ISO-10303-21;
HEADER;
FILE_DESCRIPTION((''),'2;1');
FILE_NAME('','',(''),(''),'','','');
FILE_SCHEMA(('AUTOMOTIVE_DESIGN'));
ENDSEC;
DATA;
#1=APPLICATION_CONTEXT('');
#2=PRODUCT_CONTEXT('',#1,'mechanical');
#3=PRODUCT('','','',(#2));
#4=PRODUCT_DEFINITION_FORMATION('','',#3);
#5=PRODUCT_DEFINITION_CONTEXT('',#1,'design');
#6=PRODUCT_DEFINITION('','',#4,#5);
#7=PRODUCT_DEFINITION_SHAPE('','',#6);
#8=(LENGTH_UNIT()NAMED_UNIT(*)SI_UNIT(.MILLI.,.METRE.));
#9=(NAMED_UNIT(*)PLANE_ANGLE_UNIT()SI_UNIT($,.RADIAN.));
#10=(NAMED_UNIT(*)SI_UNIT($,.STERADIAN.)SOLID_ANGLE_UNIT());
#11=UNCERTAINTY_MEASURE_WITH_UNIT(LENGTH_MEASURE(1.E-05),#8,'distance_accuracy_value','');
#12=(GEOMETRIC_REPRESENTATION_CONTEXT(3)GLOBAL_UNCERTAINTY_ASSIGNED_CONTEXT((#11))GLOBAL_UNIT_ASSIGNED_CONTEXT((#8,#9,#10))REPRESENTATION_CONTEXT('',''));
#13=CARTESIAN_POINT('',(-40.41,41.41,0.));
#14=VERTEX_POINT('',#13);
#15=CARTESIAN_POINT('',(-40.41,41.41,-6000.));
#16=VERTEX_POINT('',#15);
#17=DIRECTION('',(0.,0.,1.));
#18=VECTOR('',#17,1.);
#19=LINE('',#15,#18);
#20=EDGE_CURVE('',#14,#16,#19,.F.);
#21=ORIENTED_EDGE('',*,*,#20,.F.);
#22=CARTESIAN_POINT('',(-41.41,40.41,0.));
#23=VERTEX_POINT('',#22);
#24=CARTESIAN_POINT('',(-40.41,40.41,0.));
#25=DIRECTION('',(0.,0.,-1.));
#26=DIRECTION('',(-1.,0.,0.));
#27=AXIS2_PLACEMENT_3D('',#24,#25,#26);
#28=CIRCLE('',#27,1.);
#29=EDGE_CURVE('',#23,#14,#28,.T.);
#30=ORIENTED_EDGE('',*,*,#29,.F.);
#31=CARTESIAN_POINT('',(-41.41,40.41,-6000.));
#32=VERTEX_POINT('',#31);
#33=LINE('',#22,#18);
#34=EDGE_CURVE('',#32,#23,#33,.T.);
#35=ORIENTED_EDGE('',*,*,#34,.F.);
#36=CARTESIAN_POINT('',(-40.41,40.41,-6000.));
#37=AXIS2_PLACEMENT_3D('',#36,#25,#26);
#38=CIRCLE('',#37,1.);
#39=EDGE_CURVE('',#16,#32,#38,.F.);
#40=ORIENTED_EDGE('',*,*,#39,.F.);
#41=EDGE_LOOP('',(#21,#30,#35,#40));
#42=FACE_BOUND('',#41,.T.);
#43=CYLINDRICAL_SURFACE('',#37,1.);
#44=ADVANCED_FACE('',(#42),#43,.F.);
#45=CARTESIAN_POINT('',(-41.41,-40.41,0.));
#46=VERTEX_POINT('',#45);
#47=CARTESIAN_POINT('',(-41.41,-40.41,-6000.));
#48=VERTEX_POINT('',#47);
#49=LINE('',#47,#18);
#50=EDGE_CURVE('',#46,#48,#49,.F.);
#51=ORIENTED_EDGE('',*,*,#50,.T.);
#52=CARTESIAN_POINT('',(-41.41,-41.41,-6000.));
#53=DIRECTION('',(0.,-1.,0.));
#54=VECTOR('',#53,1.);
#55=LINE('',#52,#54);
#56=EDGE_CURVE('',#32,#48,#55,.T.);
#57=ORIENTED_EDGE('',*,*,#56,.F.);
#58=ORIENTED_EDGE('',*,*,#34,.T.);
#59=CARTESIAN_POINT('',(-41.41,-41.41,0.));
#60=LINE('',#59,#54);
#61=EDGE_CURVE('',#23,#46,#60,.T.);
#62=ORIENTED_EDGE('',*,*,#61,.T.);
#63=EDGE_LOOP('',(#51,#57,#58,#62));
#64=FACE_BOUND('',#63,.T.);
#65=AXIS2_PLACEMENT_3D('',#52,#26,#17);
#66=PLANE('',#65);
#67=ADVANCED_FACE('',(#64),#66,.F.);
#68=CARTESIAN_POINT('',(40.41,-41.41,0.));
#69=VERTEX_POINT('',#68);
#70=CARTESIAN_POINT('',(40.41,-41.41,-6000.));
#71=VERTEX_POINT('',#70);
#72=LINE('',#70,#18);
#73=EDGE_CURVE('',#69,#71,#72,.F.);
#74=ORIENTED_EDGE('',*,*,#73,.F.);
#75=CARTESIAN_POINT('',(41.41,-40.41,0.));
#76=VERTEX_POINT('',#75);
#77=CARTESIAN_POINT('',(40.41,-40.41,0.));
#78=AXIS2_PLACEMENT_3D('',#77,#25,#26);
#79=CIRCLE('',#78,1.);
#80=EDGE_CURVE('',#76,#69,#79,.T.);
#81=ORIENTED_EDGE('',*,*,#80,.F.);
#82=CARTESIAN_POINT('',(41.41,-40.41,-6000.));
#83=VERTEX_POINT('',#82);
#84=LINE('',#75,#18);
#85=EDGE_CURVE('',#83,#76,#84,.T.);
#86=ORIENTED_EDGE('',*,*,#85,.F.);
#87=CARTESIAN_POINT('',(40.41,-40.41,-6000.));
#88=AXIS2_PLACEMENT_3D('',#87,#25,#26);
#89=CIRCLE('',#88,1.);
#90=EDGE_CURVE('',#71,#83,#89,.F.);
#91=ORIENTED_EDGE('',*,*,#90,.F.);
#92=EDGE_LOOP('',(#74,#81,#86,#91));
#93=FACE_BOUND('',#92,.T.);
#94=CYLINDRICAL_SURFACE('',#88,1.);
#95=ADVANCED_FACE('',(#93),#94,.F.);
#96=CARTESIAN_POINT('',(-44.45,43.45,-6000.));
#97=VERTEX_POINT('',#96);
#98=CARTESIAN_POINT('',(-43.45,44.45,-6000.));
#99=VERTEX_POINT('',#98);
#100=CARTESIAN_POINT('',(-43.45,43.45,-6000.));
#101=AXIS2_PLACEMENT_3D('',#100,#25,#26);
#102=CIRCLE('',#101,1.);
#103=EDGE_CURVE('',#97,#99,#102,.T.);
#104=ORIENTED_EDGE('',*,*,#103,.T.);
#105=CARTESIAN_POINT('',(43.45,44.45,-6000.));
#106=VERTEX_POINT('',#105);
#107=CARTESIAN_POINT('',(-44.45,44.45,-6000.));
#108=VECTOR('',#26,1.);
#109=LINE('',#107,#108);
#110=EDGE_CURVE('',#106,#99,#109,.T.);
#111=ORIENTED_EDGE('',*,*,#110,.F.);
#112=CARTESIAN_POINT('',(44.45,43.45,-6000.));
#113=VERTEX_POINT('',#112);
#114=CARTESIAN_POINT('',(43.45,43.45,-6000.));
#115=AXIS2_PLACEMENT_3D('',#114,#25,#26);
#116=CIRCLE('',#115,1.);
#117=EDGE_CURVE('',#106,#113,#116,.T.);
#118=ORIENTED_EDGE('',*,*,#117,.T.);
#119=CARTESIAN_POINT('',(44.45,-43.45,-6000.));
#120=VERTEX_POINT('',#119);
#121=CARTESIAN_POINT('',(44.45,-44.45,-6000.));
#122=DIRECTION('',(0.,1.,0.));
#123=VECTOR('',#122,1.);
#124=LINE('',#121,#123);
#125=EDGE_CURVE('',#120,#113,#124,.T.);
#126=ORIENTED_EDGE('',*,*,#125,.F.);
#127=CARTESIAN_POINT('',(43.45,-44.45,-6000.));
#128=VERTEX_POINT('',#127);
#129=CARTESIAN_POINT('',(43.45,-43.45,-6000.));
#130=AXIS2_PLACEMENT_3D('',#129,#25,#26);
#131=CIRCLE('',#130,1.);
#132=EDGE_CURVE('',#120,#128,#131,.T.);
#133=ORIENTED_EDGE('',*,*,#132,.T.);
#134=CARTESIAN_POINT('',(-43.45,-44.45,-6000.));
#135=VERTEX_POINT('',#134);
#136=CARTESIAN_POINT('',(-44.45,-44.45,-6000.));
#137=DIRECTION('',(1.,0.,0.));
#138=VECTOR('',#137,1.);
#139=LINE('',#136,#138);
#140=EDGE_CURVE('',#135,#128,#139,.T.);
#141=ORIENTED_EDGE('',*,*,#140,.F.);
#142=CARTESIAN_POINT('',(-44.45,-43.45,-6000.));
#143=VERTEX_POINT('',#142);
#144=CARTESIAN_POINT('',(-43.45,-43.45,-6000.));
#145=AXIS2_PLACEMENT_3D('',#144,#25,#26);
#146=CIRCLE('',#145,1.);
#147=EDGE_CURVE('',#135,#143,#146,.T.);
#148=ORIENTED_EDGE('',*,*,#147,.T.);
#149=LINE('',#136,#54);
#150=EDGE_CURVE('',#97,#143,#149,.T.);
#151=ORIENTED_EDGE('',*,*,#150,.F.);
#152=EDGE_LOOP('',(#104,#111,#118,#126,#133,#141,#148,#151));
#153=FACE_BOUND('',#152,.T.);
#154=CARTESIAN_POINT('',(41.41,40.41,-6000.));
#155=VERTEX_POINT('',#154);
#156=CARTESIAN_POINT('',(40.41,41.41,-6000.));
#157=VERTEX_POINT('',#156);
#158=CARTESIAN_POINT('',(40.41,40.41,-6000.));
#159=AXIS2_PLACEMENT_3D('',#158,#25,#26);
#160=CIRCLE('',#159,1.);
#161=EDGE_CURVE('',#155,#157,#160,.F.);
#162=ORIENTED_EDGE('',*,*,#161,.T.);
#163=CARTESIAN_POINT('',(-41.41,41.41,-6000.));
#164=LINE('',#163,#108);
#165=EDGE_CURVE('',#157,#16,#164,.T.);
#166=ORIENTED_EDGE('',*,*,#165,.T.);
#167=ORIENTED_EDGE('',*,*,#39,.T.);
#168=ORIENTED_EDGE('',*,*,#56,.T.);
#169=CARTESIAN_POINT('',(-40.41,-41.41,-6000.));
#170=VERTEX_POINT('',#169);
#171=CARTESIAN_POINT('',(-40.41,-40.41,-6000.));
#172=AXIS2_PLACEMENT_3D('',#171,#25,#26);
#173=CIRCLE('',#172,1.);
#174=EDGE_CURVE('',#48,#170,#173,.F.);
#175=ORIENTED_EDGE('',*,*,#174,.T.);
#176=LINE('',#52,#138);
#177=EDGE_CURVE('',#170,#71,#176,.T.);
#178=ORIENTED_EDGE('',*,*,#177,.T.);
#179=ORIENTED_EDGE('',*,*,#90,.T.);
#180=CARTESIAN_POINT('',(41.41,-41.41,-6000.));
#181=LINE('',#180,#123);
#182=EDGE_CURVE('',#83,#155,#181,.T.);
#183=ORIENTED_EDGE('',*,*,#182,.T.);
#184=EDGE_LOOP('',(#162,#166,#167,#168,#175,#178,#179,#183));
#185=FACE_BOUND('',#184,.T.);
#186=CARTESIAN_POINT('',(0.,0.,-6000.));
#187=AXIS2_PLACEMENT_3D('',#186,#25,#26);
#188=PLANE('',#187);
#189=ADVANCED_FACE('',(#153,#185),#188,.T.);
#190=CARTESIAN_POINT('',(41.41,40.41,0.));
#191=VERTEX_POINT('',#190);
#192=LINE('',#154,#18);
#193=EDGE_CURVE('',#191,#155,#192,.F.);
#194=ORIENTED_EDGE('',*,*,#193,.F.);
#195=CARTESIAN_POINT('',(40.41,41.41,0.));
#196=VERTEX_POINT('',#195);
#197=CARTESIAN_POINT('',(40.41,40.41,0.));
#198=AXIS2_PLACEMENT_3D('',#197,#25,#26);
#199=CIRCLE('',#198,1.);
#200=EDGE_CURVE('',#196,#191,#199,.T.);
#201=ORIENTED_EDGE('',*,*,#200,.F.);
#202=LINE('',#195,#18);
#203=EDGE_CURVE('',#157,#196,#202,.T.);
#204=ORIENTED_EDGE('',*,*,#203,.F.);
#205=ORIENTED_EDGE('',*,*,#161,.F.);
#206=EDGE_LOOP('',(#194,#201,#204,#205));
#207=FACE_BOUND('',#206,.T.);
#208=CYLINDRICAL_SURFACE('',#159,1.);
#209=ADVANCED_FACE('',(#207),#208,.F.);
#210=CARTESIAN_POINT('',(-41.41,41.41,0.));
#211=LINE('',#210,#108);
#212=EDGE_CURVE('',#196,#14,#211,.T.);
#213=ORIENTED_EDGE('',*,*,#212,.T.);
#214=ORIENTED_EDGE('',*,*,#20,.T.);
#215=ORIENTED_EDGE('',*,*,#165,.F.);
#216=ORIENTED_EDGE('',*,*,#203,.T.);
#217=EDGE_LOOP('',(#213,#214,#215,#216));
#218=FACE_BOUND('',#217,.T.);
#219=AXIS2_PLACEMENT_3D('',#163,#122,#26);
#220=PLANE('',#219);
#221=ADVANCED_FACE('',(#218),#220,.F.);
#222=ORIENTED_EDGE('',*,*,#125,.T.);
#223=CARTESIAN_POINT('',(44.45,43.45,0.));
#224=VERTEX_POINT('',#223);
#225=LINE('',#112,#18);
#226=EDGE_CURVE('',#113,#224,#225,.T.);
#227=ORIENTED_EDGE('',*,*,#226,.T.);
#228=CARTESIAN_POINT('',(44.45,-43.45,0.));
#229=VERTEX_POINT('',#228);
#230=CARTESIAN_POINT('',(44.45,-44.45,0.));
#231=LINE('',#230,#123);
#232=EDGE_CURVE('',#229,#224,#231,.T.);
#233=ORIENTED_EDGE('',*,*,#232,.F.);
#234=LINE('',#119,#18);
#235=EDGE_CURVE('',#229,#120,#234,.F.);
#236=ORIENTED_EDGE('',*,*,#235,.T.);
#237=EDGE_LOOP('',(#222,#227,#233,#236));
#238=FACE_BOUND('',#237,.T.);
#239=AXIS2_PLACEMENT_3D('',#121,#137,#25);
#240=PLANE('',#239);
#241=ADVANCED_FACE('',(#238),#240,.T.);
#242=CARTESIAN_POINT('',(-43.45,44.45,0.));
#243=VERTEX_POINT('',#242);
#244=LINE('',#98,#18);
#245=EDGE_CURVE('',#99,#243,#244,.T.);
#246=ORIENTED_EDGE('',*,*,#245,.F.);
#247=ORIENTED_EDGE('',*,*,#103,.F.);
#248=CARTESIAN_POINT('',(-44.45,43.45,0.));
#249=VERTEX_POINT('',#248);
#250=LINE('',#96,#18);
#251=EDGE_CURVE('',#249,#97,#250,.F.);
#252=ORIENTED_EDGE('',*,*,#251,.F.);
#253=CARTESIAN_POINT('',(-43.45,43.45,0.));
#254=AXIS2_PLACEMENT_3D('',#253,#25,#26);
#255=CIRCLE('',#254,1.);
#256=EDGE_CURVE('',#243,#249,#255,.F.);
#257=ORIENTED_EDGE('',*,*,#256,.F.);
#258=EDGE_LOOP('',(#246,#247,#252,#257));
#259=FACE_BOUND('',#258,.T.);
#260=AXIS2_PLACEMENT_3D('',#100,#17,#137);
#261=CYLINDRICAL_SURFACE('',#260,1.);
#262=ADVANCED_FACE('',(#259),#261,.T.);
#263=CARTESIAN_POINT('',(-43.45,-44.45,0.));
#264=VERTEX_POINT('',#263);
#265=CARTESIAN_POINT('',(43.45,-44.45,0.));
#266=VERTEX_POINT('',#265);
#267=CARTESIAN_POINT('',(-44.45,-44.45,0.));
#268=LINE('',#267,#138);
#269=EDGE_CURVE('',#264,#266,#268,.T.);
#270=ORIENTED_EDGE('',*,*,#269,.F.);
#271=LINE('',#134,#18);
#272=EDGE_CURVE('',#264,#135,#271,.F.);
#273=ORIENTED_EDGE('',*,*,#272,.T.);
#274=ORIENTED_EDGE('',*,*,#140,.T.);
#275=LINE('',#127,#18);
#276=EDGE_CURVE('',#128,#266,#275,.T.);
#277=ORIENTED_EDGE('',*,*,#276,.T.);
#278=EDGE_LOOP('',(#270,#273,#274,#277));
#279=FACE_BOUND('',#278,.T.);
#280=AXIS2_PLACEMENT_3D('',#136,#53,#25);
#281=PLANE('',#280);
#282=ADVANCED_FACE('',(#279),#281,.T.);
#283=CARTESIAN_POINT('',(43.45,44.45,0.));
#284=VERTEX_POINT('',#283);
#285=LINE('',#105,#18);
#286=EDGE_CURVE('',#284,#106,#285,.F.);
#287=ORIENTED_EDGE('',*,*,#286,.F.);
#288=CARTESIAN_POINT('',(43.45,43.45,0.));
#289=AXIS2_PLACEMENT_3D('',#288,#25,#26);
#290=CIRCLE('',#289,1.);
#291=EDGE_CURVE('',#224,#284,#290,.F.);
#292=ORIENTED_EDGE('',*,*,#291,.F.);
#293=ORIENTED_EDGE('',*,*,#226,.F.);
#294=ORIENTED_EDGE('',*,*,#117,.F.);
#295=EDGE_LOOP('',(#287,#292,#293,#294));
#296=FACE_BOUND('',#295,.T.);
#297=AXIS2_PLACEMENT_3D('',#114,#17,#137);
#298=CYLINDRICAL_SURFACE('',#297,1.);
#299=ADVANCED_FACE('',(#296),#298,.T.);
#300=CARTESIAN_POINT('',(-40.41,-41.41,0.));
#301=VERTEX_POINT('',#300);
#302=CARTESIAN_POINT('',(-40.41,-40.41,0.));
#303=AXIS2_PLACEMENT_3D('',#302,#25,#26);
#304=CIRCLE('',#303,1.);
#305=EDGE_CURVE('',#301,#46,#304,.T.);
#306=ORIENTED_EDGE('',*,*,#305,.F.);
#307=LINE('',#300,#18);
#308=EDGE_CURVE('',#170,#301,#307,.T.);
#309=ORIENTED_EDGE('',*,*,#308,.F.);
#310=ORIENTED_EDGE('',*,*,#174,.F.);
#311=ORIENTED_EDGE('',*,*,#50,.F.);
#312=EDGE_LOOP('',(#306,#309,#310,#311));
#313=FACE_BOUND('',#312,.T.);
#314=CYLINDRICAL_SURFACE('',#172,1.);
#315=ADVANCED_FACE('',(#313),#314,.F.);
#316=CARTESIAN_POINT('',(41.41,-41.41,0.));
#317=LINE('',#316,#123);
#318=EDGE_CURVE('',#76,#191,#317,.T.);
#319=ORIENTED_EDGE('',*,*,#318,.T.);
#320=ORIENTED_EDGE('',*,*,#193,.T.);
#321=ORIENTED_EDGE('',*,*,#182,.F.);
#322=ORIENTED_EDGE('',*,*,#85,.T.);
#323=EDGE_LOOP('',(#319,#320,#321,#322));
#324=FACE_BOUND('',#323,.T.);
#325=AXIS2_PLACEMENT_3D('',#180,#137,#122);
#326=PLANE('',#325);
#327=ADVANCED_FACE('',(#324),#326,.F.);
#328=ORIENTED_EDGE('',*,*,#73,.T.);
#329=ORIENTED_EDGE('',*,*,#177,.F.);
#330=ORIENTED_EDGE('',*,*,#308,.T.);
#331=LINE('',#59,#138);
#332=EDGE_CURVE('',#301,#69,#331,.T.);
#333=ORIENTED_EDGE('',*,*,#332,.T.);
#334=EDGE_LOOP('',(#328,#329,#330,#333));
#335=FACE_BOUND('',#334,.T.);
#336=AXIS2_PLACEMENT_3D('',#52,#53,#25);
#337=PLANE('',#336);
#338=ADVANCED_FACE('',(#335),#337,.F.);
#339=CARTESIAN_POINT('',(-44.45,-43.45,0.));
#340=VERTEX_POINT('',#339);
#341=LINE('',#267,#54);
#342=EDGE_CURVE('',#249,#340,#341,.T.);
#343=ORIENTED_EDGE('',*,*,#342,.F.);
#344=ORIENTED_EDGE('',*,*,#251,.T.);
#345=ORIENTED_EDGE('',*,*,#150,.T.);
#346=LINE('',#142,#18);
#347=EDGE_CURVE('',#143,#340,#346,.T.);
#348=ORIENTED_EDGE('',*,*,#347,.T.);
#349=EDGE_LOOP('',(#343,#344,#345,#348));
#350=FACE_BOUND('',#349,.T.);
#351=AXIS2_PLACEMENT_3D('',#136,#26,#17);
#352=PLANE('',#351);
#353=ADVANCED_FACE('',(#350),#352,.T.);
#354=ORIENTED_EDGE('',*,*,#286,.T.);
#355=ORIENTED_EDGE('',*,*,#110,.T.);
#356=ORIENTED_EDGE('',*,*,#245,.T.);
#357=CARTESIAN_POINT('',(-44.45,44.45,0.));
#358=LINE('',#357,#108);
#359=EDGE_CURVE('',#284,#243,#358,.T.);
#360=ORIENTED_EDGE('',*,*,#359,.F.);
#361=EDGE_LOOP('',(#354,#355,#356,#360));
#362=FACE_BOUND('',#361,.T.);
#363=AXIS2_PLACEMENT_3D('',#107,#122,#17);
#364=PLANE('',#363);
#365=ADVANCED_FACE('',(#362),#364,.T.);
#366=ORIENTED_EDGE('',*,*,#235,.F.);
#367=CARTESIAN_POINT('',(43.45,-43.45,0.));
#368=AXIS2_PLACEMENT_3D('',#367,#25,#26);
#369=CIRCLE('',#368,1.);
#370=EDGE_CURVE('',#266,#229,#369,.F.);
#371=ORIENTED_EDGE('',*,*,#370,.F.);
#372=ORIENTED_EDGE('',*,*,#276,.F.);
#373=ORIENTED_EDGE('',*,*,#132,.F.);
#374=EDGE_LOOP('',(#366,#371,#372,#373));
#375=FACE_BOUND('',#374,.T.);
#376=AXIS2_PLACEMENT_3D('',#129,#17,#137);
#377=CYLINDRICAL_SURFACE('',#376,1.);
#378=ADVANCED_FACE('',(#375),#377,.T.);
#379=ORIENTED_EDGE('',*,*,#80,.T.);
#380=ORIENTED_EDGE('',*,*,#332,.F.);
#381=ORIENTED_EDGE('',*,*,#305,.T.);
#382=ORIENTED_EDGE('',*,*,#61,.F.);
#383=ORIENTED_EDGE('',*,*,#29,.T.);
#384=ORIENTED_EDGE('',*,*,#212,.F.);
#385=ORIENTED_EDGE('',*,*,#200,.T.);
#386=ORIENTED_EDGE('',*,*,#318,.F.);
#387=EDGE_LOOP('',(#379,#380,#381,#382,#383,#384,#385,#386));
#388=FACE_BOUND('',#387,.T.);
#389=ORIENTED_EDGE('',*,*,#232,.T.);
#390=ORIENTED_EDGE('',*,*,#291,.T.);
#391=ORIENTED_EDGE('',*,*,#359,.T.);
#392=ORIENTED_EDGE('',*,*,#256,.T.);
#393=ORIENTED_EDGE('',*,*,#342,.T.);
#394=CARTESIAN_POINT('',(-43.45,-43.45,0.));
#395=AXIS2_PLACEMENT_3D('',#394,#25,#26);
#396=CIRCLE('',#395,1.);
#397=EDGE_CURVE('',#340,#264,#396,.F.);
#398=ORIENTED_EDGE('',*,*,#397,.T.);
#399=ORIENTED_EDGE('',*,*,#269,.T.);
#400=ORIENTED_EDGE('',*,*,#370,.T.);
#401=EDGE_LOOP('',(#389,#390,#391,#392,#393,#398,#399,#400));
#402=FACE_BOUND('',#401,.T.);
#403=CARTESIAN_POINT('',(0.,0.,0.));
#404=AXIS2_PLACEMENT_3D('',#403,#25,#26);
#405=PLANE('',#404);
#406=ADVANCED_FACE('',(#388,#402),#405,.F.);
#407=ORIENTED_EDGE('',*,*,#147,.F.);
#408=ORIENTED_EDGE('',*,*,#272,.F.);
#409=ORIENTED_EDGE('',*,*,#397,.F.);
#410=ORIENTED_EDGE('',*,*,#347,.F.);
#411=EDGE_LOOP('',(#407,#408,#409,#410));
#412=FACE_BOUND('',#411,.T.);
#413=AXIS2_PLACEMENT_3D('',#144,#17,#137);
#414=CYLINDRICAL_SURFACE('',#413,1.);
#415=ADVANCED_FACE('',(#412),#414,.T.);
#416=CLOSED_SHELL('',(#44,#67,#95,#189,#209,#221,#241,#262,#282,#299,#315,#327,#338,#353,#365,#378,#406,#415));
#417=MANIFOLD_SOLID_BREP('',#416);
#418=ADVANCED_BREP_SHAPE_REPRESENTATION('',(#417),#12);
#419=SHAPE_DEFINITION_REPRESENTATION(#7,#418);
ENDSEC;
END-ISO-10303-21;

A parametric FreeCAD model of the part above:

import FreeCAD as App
import Part
import Sketcher


def edges_at(feature, points):
    """Names of the edges that pass closest to the given points."""
    edges = feature.Shape.Edges
    near = lambda p: min(range(len(edges)), key=lambda i: edges[i].distToShape(Part.Vertex(*p))[0])
    return sorted({f"Edge{near(p) + 1}" for p in points})


def add_polygon(sketch, points):
    """Adds a closed chain of lines whose ends are joined by coincident constraints."""
    first, n = sketch.GeometryCount, len(points)
    for a, b in zip(points, points[1:] + points[:1]):
        sketch.addGeometry(Part.LineSegment(App.Vector(*a, 0), App.Vector(*b, 0)), False)
    for i in range(n):
        sketch.addConstraint(Sketcher.Constraint("Coincident", first + i, 2, first + (i + 1) % n, 1))

doc = App.newDocument("Part")
body = doc.addObject("PartDesign::Body", "Body")

sketch1 = body.newObject("Sketcher::SketchObject", "Sketch")
sketch1.AttachmentSupport = (doc.getObject("XY_Plane"), [""])
sketch1.MapMode = "FlatFace"
add_polygon(sketch1, [(-44.45, 44.45), (-44.45, -44.45), (44.45, -44.45), (44.45, 44.45)])
add_polygon(sketch1, [(41.41, -41.41), (-41.41, -41.41), (-41.41, 41.41), (41.41, 41.41)])
sketch1.addConstraint([
    Sketcher.Constraint("Vertical", 0),
    Sketcher.Constraint("Horizontal", 1),
    Sketcher.Constraint("Vertical", 2),
    Sketcher.Constraint("Horizontal", 3),
    Sketcher.Constraint("Horizontal", 4),
    Sketcher.Constraint("Vertical", 5),
    Sketcher.Constraint("Horizontal", 6),
    Sketcher.Constraint("Vertical", 7),
    Sketcher.Constraint("Symmetric", 0, 2, 2, 2, -1, 1),
    Sketcher.Constraint("Symmetric", 4, 2, 6, 2, -1, 1),
    Sketcher.Constraint("Equal", 3, 0),
    Sketcher.Constraint("Equal", 6, 5),
    Sketcher.Constraint("DistanceX", 1, 1, 1, 2, 88.9),
    Sketcher.Constraint("DistanceX", 4, 2, 4, 1, 82.82),
])
pad1 = body.newObject("PartDesign::Pad", "Pad")
pad1.Profile = sketch1
pad1.Length = 6000
pad1.Reversed = True
doc.recompute()

fillet = body.newObject("PartDesign::Fillet", "Fillet")
fillet.Base = (pad1, edges_at(pad1, [
    (41.41, -41.41, -3000),
    (-41.41, -41.41, -3000),
    (-41.41, 41.41, -3000),
    (41.41, 41.41, -3000),
    (44.45, -44.45, -3000),
    (-44.45, -44.45, -3000),
    (-44.45, 44.45, -3000),
    (44.45, 44.45, -3000),
]))
fillet.Radius = 1

doc.recompute()
